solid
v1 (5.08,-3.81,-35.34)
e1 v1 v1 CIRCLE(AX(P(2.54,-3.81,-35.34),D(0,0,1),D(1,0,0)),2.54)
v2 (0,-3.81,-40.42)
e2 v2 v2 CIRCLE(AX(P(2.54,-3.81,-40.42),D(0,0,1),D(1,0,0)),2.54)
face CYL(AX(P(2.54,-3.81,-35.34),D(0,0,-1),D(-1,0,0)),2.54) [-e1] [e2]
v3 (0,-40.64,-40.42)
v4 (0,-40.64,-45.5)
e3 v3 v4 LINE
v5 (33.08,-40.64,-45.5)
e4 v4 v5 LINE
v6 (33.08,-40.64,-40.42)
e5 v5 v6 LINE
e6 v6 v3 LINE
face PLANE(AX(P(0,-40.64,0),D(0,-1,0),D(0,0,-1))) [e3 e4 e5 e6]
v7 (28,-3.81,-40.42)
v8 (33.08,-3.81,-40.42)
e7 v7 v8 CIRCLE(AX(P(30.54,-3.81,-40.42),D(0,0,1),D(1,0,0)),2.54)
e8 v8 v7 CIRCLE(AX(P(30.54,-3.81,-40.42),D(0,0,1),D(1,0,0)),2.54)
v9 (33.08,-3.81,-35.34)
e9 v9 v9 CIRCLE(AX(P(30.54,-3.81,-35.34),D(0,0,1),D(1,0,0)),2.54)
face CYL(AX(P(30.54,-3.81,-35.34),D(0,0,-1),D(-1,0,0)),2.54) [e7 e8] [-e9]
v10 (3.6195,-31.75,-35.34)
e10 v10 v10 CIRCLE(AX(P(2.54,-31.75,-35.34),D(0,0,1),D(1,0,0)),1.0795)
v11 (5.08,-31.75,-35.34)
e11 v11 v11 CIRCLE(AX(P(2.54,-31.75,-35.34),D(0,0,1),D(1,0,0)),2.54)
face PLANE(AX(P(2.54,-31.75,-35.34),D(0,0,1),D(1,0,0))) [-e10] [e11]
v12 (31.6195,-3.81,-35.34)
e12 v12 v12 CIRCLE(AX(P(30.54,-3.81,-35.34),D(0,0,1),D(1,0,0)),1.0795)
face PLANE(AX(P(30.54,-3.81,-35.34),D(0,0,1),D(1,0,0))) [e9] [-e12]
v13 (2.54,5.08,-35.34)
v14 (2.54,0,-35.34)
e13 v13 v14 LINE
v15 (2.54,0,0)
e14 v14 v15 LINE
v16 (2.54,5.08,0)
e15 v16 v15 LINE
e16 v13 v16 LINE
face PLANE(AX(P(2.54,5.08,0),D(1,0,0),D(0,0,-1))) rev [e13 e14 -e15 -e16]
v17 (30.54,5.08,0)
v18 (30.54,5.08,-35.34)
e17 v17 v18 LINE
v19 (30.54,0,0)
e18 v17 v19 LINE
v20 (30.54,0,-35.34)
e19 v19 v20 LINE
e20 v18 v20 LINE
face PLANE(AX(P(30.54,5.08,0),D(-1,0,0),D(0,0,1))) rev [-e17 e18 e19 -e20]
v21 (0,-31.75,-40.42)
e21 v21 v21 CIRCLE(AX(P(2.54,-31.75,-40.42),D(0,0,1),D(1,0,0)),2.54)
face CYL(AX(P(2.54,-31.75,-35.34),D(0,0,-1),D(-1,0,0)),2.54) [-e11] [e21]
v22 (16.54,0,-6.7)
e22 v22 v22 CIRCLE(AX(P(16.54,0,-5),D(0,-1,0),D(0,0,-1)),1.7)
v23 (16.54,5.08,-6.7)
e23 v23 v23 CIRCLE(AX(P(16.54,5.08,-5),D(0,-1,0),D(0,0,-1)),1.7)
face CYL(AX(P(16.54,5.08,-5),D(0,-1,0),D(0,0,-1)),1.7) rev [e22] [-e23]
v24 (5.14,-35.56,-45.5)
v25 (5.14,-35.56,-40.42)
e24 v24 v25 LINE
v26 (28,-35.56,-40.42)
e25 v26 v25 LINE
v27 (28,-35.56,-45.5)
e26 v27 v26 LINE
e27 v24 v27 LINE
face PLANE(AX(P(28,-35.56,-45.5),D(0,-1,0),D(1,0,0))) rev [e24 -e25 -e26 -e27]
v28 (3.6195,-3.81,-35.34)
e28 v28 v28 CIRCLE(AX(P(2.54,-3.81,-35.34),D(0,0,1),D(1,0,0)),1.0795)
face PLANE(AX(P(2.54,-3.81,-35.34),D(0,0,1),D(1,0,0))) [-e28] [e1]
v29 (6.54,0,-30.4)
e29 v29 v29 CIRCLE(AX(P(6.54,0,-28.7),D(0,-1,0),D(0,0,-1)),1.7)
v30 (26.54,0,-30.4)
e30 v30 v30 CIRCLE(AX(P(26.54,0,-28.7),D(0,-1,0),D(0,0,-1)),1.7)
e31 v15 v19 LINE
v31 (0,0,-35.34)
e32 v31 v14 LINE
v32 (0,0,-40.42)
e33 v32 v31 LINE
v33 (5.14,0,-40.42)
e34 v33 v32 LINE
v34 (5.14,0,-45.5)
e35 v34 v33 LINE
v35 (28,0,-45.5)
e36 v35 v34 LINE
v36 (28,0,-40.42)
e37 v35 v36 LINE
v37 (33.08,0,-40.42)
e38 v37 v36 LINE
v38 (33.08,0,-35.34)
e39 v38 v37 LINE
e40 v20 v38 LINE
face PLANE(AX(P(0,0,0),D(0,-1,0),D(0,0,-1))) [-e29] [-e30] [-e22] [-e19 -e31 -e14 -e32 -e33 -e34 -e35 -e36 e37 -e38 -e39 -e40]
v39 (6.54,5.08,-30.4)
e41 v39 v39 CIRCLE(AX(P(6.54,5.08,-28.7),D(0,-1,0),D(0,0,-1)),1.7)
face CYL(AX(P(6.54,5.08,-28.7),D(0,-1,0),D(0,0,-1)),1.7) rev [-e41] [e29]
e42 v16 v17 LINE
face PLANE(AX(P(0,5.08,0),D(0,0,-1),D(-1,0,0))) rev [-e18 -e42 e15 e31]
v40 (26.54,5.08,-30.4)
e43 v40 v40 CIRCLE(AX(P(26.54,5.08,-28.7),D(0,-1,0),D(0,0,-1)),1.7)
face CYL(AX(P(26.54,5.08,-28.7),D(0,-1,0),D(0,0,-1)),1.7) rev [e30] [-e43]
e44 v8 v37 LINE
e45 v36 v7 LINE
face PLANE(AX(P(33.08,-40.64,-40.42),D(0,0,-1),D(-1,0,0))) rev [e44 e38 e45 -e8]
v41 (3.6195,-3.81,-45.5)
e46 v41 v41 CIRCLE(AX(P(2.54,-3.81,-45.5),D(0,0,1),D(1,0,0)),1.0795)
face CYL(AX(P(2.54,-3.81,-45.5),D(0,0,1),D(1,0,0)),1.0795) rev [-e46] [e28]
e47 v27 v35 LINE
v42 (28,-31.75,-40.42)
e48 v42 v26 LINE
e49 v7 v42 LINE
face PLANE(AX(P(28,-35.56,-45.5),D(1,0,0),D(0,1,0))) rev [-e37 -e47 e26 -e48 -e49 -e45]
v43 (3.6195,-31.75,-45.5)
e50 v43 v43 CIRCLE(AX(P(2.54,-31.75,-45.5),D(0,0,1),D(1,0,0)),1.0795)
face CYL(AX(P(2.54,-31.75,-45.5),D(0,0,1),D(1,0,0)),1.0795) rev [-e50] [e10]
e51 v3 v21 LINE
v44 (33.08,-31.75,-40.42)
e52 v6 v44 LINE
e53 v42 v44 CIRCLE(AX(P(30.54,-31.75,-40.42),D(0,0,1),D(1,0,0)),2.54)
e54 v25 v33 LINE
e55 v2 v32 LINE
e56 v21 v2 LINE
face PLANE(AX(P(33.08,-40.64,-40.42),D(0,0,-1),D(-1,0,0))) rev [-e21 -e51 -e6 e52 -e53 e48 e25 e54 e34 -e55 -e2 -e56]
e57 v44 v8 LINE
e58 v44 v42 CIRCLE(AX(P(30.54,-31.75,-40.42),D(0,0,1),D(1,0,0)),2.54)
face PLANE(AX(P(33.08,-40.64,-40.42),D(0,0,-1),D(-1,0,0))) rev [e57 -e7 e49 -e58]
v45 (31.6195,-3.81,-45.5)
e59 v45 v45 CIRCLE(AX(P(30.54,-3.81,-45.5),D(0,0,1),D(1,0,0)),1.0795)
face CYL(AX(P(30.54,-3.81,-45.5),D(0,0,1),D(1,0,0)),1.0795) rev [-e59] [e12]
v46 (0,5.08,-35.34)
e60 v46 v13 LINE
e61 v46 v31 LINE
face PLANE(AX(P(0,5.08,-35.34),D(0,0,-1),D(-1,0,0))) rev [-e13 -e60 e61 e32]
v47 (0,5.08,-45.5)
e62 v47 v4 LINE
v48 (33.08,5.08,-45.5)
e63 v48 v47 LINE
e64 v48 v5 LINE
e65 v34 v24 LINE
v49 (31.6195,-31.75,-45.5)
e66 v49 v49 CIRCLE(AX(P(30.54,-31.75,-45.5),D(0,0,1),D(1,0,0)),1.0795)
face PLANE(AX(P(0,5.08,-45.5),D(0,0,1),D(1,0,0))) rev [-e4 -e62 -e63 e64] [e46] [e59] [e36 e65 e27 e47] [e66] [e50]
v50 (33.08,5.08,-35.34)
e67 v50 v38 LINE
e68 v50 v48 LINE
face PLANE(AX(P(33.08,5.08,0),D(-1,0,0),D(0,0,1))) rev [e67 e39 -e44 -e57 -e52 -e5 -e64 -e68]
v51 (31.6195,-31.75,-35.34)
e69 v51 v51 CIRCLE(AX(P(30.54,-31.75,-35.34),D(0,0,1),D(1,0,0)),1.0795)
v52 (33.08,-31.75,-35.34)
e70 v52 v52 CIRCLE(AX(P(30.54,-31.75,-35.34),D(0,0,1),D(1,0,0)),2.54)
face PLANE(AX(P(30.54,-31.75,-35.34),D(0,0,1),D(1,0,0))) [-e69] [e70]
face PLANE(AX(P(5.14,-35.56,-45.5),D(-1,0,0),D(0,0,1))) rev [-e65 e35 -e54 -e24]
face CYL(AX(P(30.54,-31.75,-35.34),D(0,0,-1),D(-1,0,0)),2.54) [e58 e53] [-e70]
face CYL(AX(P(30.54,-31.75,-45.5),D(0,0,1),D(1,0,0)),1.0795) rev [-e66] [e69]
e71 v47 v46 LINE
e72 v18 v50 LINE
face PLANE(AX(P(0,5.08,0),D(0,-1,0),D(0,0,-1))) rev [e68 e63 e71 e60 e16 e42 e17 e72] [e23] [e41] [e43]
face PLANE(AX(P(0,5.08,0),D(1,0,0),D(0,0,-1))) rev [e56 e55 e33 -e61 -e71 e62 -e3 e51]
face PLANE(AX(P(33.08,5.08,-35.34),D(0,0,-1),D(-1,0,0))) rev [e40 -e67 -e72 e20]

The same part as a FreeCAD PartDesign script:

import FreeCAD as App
import Part
import Sketcher

V = App.Vector
Q = App.Units.Quantity

doc = App.newDocument("Part")
body = doc.addObject("PartDesign::Body", "Body")

# Sketch on XZ plane
sketch1 = body.newObject("Sketcher::SketchObject", "Sketch")
sketch1.AttachmentSupport = (doc.getObject("XZ_Plane"), [""])
sketch1.MapMode = "FlatFace"
sketch1.addGeometry([
    Part.LineSegment(V(0, -46, 0), V(0, 0, 0)),
    Part.LineSegment(V(0, 0, 0), V(33, 0, 0)),
    Part.LineSegment(V(33, 0, 0), V(33, -46, 0)),
    Part.LineSegment(V(33, -46, 0), V(0, -46, 0)),
], False)
sketch1.addConstraint([
    Sketcher.Constraint("Coincident", 0, 2, 1, 1),
    Sketcher.Constraint("Coincident", 1, 2, 2, 1),
    Sketcher.Constraint("Coincident", 2, 2, 3, 1),
    Sketcher.Constraint("Coincident", 3, 2, 0, 1),
    Sketcher.Constraint("Vertical", 0),
    Sketcher.Constraint("Horizontal", 1),
    Sketcher.Constraint("Vertical", 2),
    Sketcher.Constraint("Horizontal", 3),
    Sketcher.Constraint("Coincident", 0, 2, -1, 1),
    Sketcher.Constraint("DistanceX", 1, 1, 1, 2, 33.08),
    Sketcher.Constraint("DistanceY", 0, 1, 0, 2, 45.5),
])
pad1 = body.newObject("PartDesign::Pad", "Pad")
pad1.Profile = sketch1
pad1.Length = Q("0.2 in")
pad1.Reversed = True

# Sketch on XZ plane
sketch2 = body.newObject("Sketcher::SketchObject", "Sketch001")
sketch2.AttachmentSupport = (doc.getObject("XZ_Plane"), [""])
sketch2.MapMode = "FlatFace"
sketch2.addGeometry([
    Part.Circle(V(6.5, -28.7, 0), V(0, 0, 1), 1.7),
    Part.Circle(V(26.5, -28.7, 0), V(0, 0, 1), 1.7),
    Part.Circle(V(16.5, -5, 0), V(0, 0, 1), 1.7),
], False)
sketch2.addConstraint([
    Sketcher.Constraint("Equal", 0, 1),
    Sketcher.Constraint("Equal", 1, 2),
    Sketcher.Constraint("Horizontal", 0, 3, 1, 3),
    Sketcher.Constraint("Diameter", 0, 3.4),
    Sketcher.Constraint("DistanceX", -1, 1, 0, 3, 6.54),
    Sketcher.Constraint("DistanceY", 0, 3, -1, 1, 28.7),
    Sketcher.Constraint("DistanceX", -1, 1, 1, 3, 26.54),
    Sketcher.Constraint("DistanceX", -1, 1, 2, 3, 16.54),
    Sketcher.Constraint("DistanceY", 2, 3, -1, 1, 5.0),
])
pocket1 = body.newObject("PartDesign::Pocket", "Pocket")
pocket1.Profile = sketch2
pocket1.Type = "ThroughAll"

# Sketch on XZ plane
sketch3 = body.newObject("Sketcher::SketchObject", "Sketch002")
sketch3.AttachmentSupport = (doc.getObject("XZ_Plane"), [""])
sketch3.MapMode = "FlatFace"
sketch3.addGeometry([
    Part.LineSegment(V(0, -40, 0), V(0, -46, 0)),
    Part.LineSegment(V(0, -46, 0), V(33, -46, 0)),
    Part.LineSegment(V(33, -46, 0), V(33, -40, 0)),
    Part.LineSegment(V(33, -40, 0), V(0, -40, 0)),
], False)
sketch3.addConstraint([
    Sketcher.Constraint("Coincident", 0, 2, 1, 1),
    Sketcher.Constraint("Coincident", 1, 2, 2, 1),
    Sketcher.Constraint("Coincident", 2, 2, 3, 1),
    Sketcher.Constraint("Coincident", 3, 2, 0, 1),
    Sketcher.Constraint("Vertical", 0),
    Sketcher.Constraint("Horizontal", 1),
    Sketcher.Constraint("Vertical", 2),
    Sketcher.Constraint("Horizontal", 3),
    Sketcher.Constraint("PointOnObject", 0, 2, -2),
    Sketcher.Constraint("DistanceY", 0, 2, 0, 1, Q("0.2 in")),
    Sketcher.Constraint("DistanceX", 1, 1, 1, 2, 33.08),
    Sketcher.Constraint("DistanceY", 0, 2, -1, 1, 45.5),
])
pad2 = body.newObject("PartDesign::Pad", "Pad001")
pad2.Profile = sketch3
pad2.Length = Q("1.6 in")

# Sketch on XY plane
sketch4 = body.newObject("Sketcher::SketchObject", "Sketch003")
sketch4.AttachmentSupport = (doc.getObject("XY_Plane"), [""])
sketch4.MapMode = "FlatFace"
sketch4.AttachmentOffset = App.Placement(V(0, 0, -40.42), App.Rotation())
sketch4.addGeometry([
    Part.Circle(V(30.5, -31.8, 0), V(0, 0, 1), 1.1),  # 0
    Part.Circle(V(2.5, -31.8, 0), V(0, 0, 1), 1.1),  # 1
    Part.Circle(V(30.5, -3.8, 0), V(0, 0, 1), 1.1),  # 2
    Part.Circle(V(2.5, -3.8, 0), V(0, 0, 1), 1.1),  # 3
    Part.LineSegment(V(5.1, 0, 0), V(5.1, -35.6, 0)),  # 4
    Part.LineSegment(V(5.1, -35.6, 0), V(28, -35.6, 0)),  # 5
    Part.LineSegment(V(28, -35.6, 0), V(28, 0, 0)),  # 6
    Part.LineSegment(V(28, 0, 0), V(5.1, 0, 0)),  # 7
], False)
sketch4.addConstraint([
    Sketcher.Constraint("Coincident", 4, 2, 5, 1),
    Sketcher.Constraint("Coincident", 5, 2, 6, 1),
    Sketcher.Constraint("Coincident", 6, 2, 7, 1),
    Sketcher.Constraint("Coincident", 7, 2, 4, 1),
    Sketcher.Constraint("Vertical", 4),
    Sketcher.Constraint("Horizontal", 5),
    Sketcher.Constraint("Vertical", 6),
    Sketcher.Constraint("Horizontal", 7),
    Sketcher.Constraint("Equal", 0, 1),
    Sketcher.Constraint("Equal", 1, 2),
    Sketcher.Constraint("Equal", 2, 3),
    Sketcher.Constraint("PointOnObject", 6, 2, -1),
    Sketcher.Constraint("Horizontal", 0, 3, 1, 3),
    Sketcher.Constraint("Horizontal", 2, 3, 3, 3),
    Sketcher.Constraint("Vertical", 0, 3, 2, 3),
    Sketcher.Constraint("Vertical", 1, 3, 3, 3),
    Sketcher.Constraint("Diameter", 0, Q("0.085 in")),
    Sketcher.Constraint("DistanceX", 5, 1, 5, 2, Q("0.9 in")),
    Sketcher.Constraint("DistanceY", 4, 2, 4, 1, Q("1.4 in")),
    Sketcher.Constraint("DistanceX", 4, 2, 0, 3, Q("1 in")),
    Sketcher.Constraint("DistanceX", -1, 1, 1, 3, Q("0.1 in")),
    Sketcher.Constraint("DistanceY", 0, 3, 2, 3, Q("1.1 in")),
    Sketcher.Constraint("DistanceY", 0, 3, -1, 1, Q("1.25 in")),
    Sketcher.Constraint("DistanceX", -1, 1, 0, 3, 30.54),
])
pocket2 = body.newObject("PartDesign::Pocket", "Pocket001")
pocket2.Profile = sketch4
pocket2.Type = "ThroughAll"
pocket2.Midplane = True

# Sketch on XY plane
sketch5 = body.newObject("Sketcher::SketchObject", "Sketch004")
sketch5.AttachmentSupport = (doc.getObject("XY_Plane"), [""])
sketch5.MapMode = "FlatFace"
sketch5.AttachmentOffset = App.Placement(V(0, 0, -40.42), App.Rotation())
sketch5.addGeometry([
    Part.Circle(V(30.5, -31.8, 0), V(0, 0, 1), 2.5),  # 0
    Part.Circle(V(30.5, -31.8, 0), V(0, 0, 1), 1.1),  # 1
    Part.Circle(V(30.5, -3.8, 0), V(0, 0, 1), 2.5),  # 2
    Part.Circle(V(30.5, -3.8, 0), V(0, 0, 1), 1.1),  # 3
    Part.Circle(V(2.5, -3.8, 0), V(0, 0, 1), 2.5),  # 4
    Part.Circle(V(2.5, -3.8, 0), V(0, 0, 1), 1.1),  # 5
    Part.Circle(V(2.5, -31.8, 0), V(0, 0, 1), 2.5),  # 6
    Part.Circle(V(2.5, -31.8, 0), V(0, 0, 1), 1.1),  # 7
], False)
sketch5.addConstraint([
    Sketcher.Constraint("Coincident", 1, 3, 0, 3),
    Sketcher.Constraint("Coincident", 3, 3, 2, 3),
    Sketcher.Constraint("Coincident", 5, 3, 4, 3),
    Sketcher.Constraint("Coincident", 7, 3, 6, 3),
    Sketcher.Constraint("Equal", 0, 2),
    Sketcher.Constraint("Equal", 1, 3),
    Sketcher.Constraint("Equal", 2, 4),
    Sketcher.Constraint("Equal", 3, 5),
    Sketcher.Constraint("Equal", 4, 6),
    Sketcher.Constraint("Equal", 5, 7),
    Sketcher.Constraint("Horizontal", 3, 3, 4, 3),
    Sketcher.Constraint("Horizontal", 1, 3, 6, 3),
    Sketcher.Constraint("Vertical", 1, 3, 2, 3),
    Sketcher.Constraint("Vertical", 5, 3, 6, 3),
    Sketcher.Constraint("Diameter", 0, Q("0.2 in")),
    Sketcher.Constraint("Diameter", 1, Q("0.085 in")),
    Sketcher.Constraint("DistanceX", -1, 1, 4, 3, Q("0.1 in")),
    Sketcher.Constraint("DistanceY", 0, 3, 2, 3, Q("1.1 in")),
    Sketcher.Constraint("DistanceY", 0, 3, -1, 1, Q("1.25 in")),
    Sketcher.Constraint("DistanceX", -1, 1, 0, 3, 30.54),
])
pad3 = body.newObject("PartDesign::Pad", "Pad002")
pad3.Profile = sketch5
pad3.Length = Q("0.2 in")

# Sketch on XZ plane
sketch6 = body.newObject("Sketcher::SketchObject", "Sketch005")
sketch6.AttachmentSupport = (doc.getObject("XZ_Plane"), [""])
sketch6.MapMode = "FlatFace"
sketch6.addGeometry([
    Part.LineSegment(V(0, 0, 0), V(0, -35.3, 0)),  # 0
    Part.LineSegment(V(0, -35.3, 0), V(2.5, -35.3, 0)),  # 1
    Part.LineSegment(V(2.5, -35.3, 0), V(2.5, 0, 0)),  # 2
    Part.LineSegment(V(2.5, 0, 0), V(0, 0, 0)),  # 3
    Part.LineSegment(V(30.5, 0, 0), V(30.5, -35.3, 0)),  # 4
    Part.LineSegment(V(30.5, -35.3, 0), V(33.1, -35.3, 0)),  # 5
    Part.LineSegment(V(33.1, -35.3, 0), V(33.1, 0, 0)),  # 6
    Part.LineSegment(V(33.1, 0, 0), V(30.5, 0, 0)),  # 7
], False)
sketch6.addConstraint([
    Sketcher.Constraint("Coincident", 0, 2, 1, 1),
    Sketcher.Constraint("Coincident", 1, 2, 2, 1),
    Sketcher.Constraint("Coincident", 2, 2, 3, 1),
    Sketcher.Constraint("Coincident", 3, 2, 0, 1),
    Sketcher.Constraint("Coincident", 4, 2, 5, 1),
    Sketcher.Constraint("Coincident", 5, 2, 6, 1),
    Sketcher.Constraint("Coincident", 6, 2, 7, 1),
    Sketcher.Constraint("Coincident", 7, 2, 4, 1),
    Sketcher.Constraint("Vertical", 0),
    Sketcher.Constraint("Horizontal", 1),
    Sketcher.Constraint("Vertical", 2),
    Sketcher.Constraint("Horizontal", 3),
    Sketcher.Constraint("Vertical", 4),
    Sketcher.Constraint("Horizontal", 5),
    Sketcher.Constraint("Vertical", 6),
    Sketcher.Constraint("Horizontal", 7),
    Sketcher.Constraint("Coincident", 3, 2, -1, 1),
    Sketcher.Constraint("PointOnObject", 6, 2, -1),
    Sketcher.Constraint("Horizontal", 1, 2, 4, 2),
    Sketcher.Constraint("Equal", 3, 5),
    Sketcher.Constraint("DistanceX", 1, 1, 1, 2, Q("0.1 in")),
    Sketcher.Constraint("DistanceY", 0, 2, 0, 1, 35.34),
    Sketcher.Constraint("DistanceX", -1, 1, 4, 2, 30.54),
])
pocket3 = body.newObject("PartDesign::Pocket", "Pocket002")
pocket3.Profile = sketch6
pocket3.Type = "ThroughAll"

doc.recompute()
